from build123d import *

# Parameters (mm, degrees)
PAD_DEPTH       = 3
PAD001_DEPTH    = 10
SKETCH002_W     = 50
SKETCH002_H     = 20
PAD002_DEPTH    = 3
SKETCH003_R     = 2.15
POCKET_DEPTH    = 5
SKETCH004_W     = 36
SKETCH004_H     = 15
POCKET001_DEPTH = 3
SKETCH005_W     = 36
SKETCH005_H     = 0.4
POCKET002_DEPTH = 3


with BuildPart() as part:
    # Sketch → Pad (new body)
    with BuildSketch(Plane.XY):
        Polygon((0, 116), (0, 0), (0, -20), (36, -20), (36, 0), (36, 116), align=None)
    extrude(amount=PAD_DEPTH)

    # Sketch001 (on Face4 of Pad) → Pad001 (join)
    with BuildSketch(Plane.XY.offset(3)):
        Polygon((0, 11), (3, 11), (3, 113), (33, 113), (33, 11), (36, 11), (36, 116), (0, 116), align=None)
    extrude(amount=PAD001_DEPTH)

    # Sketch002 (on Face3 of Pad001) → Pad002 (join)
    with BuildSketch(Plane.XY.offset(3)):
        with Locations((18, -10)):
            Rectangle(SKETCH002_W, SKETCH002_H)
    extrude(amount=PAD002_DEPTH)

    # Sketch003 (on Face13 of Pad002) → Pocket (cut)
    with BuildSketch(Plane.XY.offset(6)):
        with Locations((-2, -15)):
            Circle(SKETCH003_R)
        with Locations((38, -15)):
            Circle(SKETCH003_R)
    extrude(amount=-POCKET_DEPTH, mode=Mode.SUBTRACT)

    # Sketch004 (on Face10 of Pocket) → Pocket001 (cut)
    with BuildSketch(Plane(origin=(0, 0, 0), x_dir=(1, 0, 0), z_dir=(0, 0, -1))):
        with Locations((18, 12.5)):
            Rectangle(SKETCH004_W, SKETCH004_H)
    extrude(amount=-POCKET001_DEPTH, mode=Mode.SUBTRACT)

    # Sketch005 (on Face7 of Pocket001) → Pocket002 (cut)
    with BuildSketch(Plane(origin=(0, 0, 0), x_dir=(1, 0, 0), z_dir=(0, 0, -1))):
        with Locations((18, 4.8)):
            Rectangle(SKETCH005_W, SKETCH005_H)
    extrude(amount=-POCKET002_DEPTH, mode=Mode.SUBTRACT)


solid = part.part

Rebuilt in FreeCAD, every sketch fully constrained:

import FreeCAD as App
import Part
import Sketcher

V = App.Vector
Q = App.Units.Quantity


def add_polygon(sketch, points):
    """Adds a closed chain of lines whose ends are joined by coincident constraints."""
    first, n = sketch.GeometryCount, len(points)
    for a, b in zip(points, points[1:] + points[:1]):
        sketch.addGeometry(Part.LineSegment(App.Vector(*a, 0), App.Vector(*b, 0)), False)
    for i in range(n):
        sketch.addConstraint(Sketcher.Constraint("Coincident", first + i, 2, first + (i + 1) % n, 1))

doc = App.newDocument("Part")
params = doc.addObject("Spreadsheet::Sheet", "Params")
for row, (alias, value) in enumerate([
    ("sketch1_width", "36 mm"),
    ("sketch1_height", "136 mm"),
    ("pad1_length", "3 mm"),
    ("sketch2_width", "3 mm"),
    ("sketch2_width2", "30 mm"),
    ("sketch2_height", "102 mm"),
    ("sketch2_height2", "105 mm"),
    ("pad2_length", "10 mm"),
    ("sketch3_width", "50 mm"),
    ("sketch3_height", "20 mm"),
    ("pad3_length", "3 mm"),
    ("sketch4_diameter", "4.3 mm"),
    ("pocket1_length", "5 mm"),
    ("sketch5_width", "36 mm"),
    ("sketch5_height", "15 mm"),
    ("pocket2_length", "3 mm"),
    ("sketch6_width", "36 mm"),
    ("sketch6_height", "0.4 mm"),
    ("pocket3_length", "3 mm"),
], start=1):
    params.set(f"A{row}", alias)
    params.set(f"B{row}", "=" + value)
    params.setAlias(f"B{row}", alias)

body = doc.addObject("PartDesign::Body", "Body")

# Sketch on XY plane
sketch1 = body.newObject("Sketcher::SketchObject", "Sketch")
sketch1.AttachmentSupport = (doc.getObject("XY_Plane"), [""])
sketch1.MapMode = "FlatFace"
add_polygon(sketch1, [(0, 116), (0, -20), (36, -20), (36, 116)])  # lines 0-3
sketch1.addConstraint([
    Sketcher.Constraint("Vertical", 0),
    Sketcher.Constraint("Horizontal", 1),
    Sketcher.Constraint("Vertical", 2),
    Sketcher.Constraint("Horizontal", 3),
    Sketcher.Constraint("PointOnObject", 0, 2, -2),
    Sketcher.Constraint("DistanceX", 1, 1, 1, 2, Q("36 mm")),
    Sketcher.Constraint("DistanceY", 0, 2, 0, 1, Q("136 mm")),
    Sketcher.Constraint("DistanceY", 0, 2, -1, 1, Q("20 mm")),
])
sketch1.setExpression("Constraints[9]", "Params.sketch1_width")
sketch1.setExpression("Constraints[10]", "Params.sketch1_height")
pad1 = body.newObject("PartDesign::Pad", "Pad")
pad1.Profile = sketch1
pad1.setExpression("Length", "Params.pad1_length")

# Sketch on XY plane
sketch2 = body.newObject("Sketcher::SketchObject", "Sketch001")
sketch2.AttachmentSupport = (doc.getObject("XY_Plane"), [""])
sketch2.MapMode = "FlatFace"
sketch2.AttachmentOffset = App.Placement(V(0, 0, 3), App.Rotation())
add_polygon(sketch2, [(0, 11), (3, 11), (3, 113), (33, 113), (33, 11), (36, 11), (36, 116), (0, 116)])  # lines 0-7
sketch2.addConstraint([
    Sketcher.Constraint("Horizontal", 0),
    Sketcher.Constraint("Vertical", 1),
    Sketcher.Constraint("Horizontal", 2),
    Sketcher.Constraint("Vertical", 3),
    Sketcher.Constraint("Horizontal", 4),
    Sketcher.Constraint("Vertical", 5),
    Sketcher.Constraint("Horizontal", 6),
    Sketcher.Constraint("Vertical", 7),
    Sketcher.Constraint("PointOnObject", 6, 2, -2),
    Sketcher.Constraint("Horizontal", 0, 2, 3, 2),
    Sketcher.Constraint("Equal", 0, 4),
    Sketcher.Constraint("DistanceX", 0, 1, 0, 2, Q("3 mm")),
    Sketcher.Constraint("DistanceX", 2, 1, 2, 2, Q("30 mm")),
    Sketcher.Constraint("DistanceY", 1, 1, 1, 2, Q("102 mm")),
    Sketcher.Constraint("DistanceY", 5, 1, 5, 2, Q("105 mm")),
    Sketcher.Constraint("DistanceY", -1, 1, 0, 2, Q("11 mm")),
])
sketch2.setExpression("Constraints[19]", "Params.sketch2_width")
sketch2.setExpression("Constraints[20]", "Params.sketch2_width2")
sketch2.setExpression("Constraints[21]", "Params.sketch2_height")
sketch2.setExpression("Constraints[22]", "Params.sketch2_height2")
pad2 = body.newObject("PartDesign::Pad", "Pad001")
pad2.Profile = sketch2
pad2.setExpression("Length", "Params.pad2_length")

# Sketch on XY plane
sketch3 = body.newObject("Sketcher::SketchObject", "Sketch002")
sketch3.AttachmentSupport = (doc.getObject("XY_Plane"), [""])
sketch3.MapMode = "FlatFace"
sketch3.AttachmentOffset = App.Placement(V(0, 0, 3), App.Rotation())
add_polygon(sketch3, [(-7, 0), (-7, -20), (43, -20), (43, 0)])  # lines 0-3
sketch3.addConstraint([
    Sketcher.Constraint("Vertical", 0),
    Sketcher.Constraint("Horizontal", 1),
    Sketcher.Constraint("Vertical", 2),
    Sketcher.Constraint("Horizontal", 3),
    Sketcher.Constraint("PointOnObject", 2, 2, -1),
    Sketcher.Constraint("DistanceX", 1, 1, 1, 2, Q("50 mm")),
    Sketcher.Constraint("DistanceY", 0, 2, 0, 1, Q("20 mm")),
    Sketcher.Constraint("DistanceX", 0, 2, -1, 1, Q("7 mm")),
])
sketch3.setExpression("Constraints[9]", "Params.sketch3_width")
sketch3.setExpression("Constraints[10]", "Params.sketch3_height")
pad3 = body.newObject("PartDesign::Pad", "Pad002")
pad3.Profile = sketch3
pad3.setExpression("Length", "Params.pad3_length")

# Sketch on XY plane
sketch4 = body.newObject("Sketcher::SketchObject", "Sketch003")
sketch4.AttachmentSupport = (doc.getObject("XY_Plane"), [""])
sketch4.MapMode = "FlatFace"
sketch4.AttachmentOffset = App.Placement(V(0, 0, 6), App.Rotation())
sketch4.addGeometry([
    Part.Circle(V(-2, -15, 0), V(0, 0, 1), 2.15),
    Part.Circle(V(38, -15, 0), V(0, 0, 1), 2.15),
], False)
sketch4.addConstraint([
    Sketcher.Constraint("Equal", 0, 1),
    Sketcher.Constraint("Horizontal", 0, 3, 1, 3),
    Sketcher.Constraint("Diameter", 0, Q("4.3 mm")),
    Sketcher.Constraint("DistanceX", 0, 3, -1, 1, Q("2 mm")),
    Sketcher.Constraint("DistanceY", 0, 3, -1, 1, Q("15 mm")),
    Sketcher.Constraint("DistanceX", -1, 1, 1, 3, Q("38 mm")),
])
sketch4.setExpression("Constraints[2]", "Params.sketch4_diameter")
pocket1 = body.newObject("PartDesign::Pocket", "Pocket")
pocket1.Profile = sketch4
pocket1.setExpression("Length", "Params.pocket1_length")

# Sketch on XY plane
sketch5 = body.newObject("Sketcher::SketchObject", "Sketch004")
sketch5.AttachmentSupport = (doc.getObject("XY_Plane"), [""])
sketch5.MapMode = "FlatFace"
add_polygon(sketch5, [(0, -20), (0, -5), (36, -5), (36, -20)])  # lines 0-3
sketch5.addConstraint([
    Sketcher.Constraint("Vertical", 0),
    Sketcher.Constraint("Horizontal", 1),
    Sketcher.Constraint("Vertical", 2),
    Sketcher.Constraint("Horizontal", 3),
    Sketcher.Constraint("PointOnObject", 0, 2, -2),
    Sketcher.Constraint("DistanceX", 1, 1, 1, 2, Q("36 mm")),
    Sketcher.Constraint("DistanceY", 0, 1, 0, 2, Q("15 mm")),
    Sketcher.Constraint("DistanceY", 0, 2, -1, 1, Q("5 mm")),
])
sketch5.setExpression("Constraints[9]", "Params.sketch5_width")
sketch5.setExpression("Constraints[10]", "Params.sketch5_height")
pocket2 = body.newObject("PartDesign::Pocket", "Pocket001")
pocket2.Profile = sketch5
pocket2.setExpression("Length", "Params.pocket2_length")
pocket2.Reversed = True

# Sketch on XY plane
sketch6 = body.newObject("Sketcher::SketchObject", "Sketch005")
sketch6.AttachmentSupport = (doc.getObject("XY_Plane"), [""])
sketch6.MapMode = "FlatFace"
add_polygon(sketch6, [(0, -5), (0, -4.6), (36, -4.6), (36, -5)])  # lines 0-3
sketch6.addConstraint([
    Sketcher.Constraint("Vertical", 0),
    Sketcher.Constraint("Horizontal", 1),
    Sketcher.Constraint("Vertical", 2),
    Sketcher.Constraint("Horizontal", 3),
    Sketcher.Constraint("PointOnObject", 0, 2, -2),
    Sketcher.Constraint("DistanceX", 1, 1, 1, 2, Q("36 mm")),
    Sketcher.Constraint("DistanceY", 0, 1, 0, 2, Q("0.4 mm")),
    Sketcher.Constraint("DistanceY", 2, 2, -1, 1, Q("5 mm")),
])
sketch6.setExpression("Constraints[9]", "Params.sketch6_width")
sketch6.setExpression("Constraints[10]", "Params.sketch6_height")
pocket3 = body.newObject("PartDesign::Pocket", "Pocket002")
pocket3.Profile = sketch6
pocket3.setExpression("Length", "Params.pocket3_length")
pocket3.Reversed = True

doc.recompute()
